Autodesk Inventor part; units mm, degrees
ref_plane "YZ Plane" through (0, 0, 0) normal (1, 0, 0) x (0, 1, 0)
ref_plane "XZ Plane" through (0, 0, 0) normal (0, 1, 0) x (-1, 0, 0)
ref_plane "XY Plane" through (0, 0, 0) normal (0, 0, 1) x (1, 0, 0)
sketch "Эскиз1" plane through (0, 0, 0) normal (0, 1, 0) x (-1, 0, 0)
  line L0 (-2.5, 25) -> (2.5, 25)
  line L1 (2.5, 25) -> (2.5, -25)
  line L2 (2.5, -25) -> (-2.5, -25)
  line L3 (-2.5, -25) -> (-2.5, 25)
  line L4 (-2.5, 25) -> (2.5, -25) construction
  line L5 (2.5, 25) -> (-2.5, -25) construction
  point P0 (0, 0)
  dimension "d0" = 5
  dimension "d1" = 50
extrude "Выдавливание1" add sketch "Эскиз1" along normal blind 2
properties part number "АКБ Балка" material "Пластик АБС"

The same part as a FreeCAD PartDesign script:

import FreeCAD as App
import Part
import Sketcher

V = App.Vector
Q = App.Units.Quantity

doc = App.newDocument("Part")
body = doc.addObject("PartDesign::Body", "Body")

# Sketch on XZ plane
sketch1 = body.newObject("Sketcher::SketchObject", "Sketch")
sketch1.AttachmentSupport = (doc.getObject("XZ_Plane"), [""])
sketch1.MapMode = "FlatFace"
sketch1.addGeometry([
    Part.LineSegment(V(-2, 25, 0), V(2, 25, 0)),
    Part.LineSegment(V(2, 25, 0), V(2, -25, 0)),
    Part.LineSegment(V(2, -25, 0), V(-2, -25, 0)),
    Part.LineSegment(V(-2, -25, 0), V(-2, 25, 0)),
], False)
sketch1.addConstraint([
    Sketcher.Constraint("Coincident", 0, 2, 1, 1),
    Sketcher.Constraint("Coincident", 1, 2, 2, 1),
    Sketcher.Constraint("Coincident", 2, 2, 3, 1),
    Sketcher.Constraint("Coincident", 3, 2, 0, 1),
    Sketcher.Constraint("Horizontal", 0),
    Sketcher.Constraint("Vertical", 1),
    Sketcher.Constraint("Horizontal", 2),
    Sketcher.Constraint("Vertical", 3),
    Sketcher.Constraint("Symmetric", 0, 2, 2, 2, -1, 1),
    Sketcher.Constraint("DistanceX", 0, 1, 0, 2, Q("5 mm")),
    Sketcher.Constraint("DistanceY", 1, 2, 1, 1, Q("50 mm")),
])
pad1 = body.newObject("PartDesign::Pad", "Pad")
pad1.Profile = sketch1
pad1.Length = 2
pad1.Reversed = True

doc.recompute()
